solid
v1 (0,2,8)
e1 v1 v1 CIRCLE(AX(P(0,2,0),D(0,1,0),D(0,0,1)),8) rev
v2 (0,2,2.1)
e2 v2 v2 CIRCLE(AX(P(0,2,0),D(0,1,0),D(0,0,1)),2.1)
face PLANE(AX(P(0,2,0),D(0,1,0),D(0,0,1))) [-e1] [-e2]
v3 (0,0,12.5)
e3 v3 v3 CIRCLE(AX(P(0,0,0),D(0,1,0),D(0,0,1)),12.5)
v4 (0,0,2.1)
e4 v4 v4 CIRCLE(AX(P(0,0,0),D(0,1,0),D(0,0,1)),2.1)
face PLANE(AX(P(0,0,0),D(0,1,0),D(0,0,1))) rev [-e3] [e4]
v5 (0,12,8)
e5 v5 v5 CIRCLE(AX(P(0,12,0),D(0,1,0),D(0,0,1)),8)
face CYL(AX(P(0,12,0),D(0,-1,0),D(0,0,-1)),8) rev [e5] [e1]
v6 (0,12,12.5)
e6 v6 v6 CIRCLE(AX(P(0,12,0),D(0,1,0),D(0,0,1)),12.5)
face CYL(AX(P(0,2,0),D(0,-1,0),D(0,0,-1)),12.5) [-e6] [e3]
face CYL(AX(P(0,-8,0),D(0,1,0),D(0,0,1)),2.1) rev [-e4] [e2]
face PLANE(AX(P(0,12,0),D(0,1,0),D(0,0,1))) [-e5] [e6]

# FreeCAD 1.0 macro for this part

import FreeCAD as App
import Part
import Sketcher
Q = App.Units.Quantity

doc = App.newDocument("Part")
params = doc.addObject("Spreadsheet::Sheet", "Params")
for row, (alias, value) in enumerate([
    ("sketch1_diameter", "25 mm"),
    ("pad1_length", "2 mm"),
    ("sketch2_diameter", "25 mm"),
    ("sketch2_diameter2", "16 mm"),
    ("pad2_length", "10 mm"),
    ("sketch3_diameter", "4.2 mm"),
    ("pocket1_length", "10 mm"),
], start=1):
    params.set(f"A{row}", alias)
    params.set(f"B{row}", "=" + value)
    params.setAlias(f"B{row}", alias)

body = doc.addObject("PartDesign::Body", "Body")

sketch1 = body.newObject("Sketcher::SketchObject", "Sketch")
sketch1.AttachmentSupport = (doc.getObject("XZ_Plane"), [""])
sketch1.MapMode = "FlatFace"
sketch1.addGeometry(Part.Circle(App.Vector(0, 0, 0), App.Vector(0, 0, 1), 12), False)
sketch1.addConstraint([
    Sketcher.Constraint("Coincident", 0, 3, -1, 1),
    Sketcher.Constraint("Diameter", 0, Q("25 mm")),
])
sketch1.setExpression("Constraints[1]", "Params.sketch1_diameter")
pad1 = body.newObject("PartDesign::Pad", "Pad")
pad1.Profile = sketch1
pad1.setExpression("Length", "Params.pad1_length")
pad1.Reversed = True

sketch2 = body.newObject("Sketcher::SketchObject", "Sketch001")
sketch2.AttachmentSupport = (doc.getObject("XZ_Plane"), [""])
sketch2.MapMode = "FlatFace"
sketch2.AttachmentOffset = App.Placement(App.Vector(0, 0, -2), App.Rotation())
sketch2.addGeometry([
    Part.Circle(App.Vector(0, 0, 0), App.Vector(0, 0, 1), 12),
    Part.Circle(App.Vector(0, 0, 0), App.Vector(0, 0, 1), 8),
], False)
sketch2.addConstraint([
    Sketcher.Constraint("Coincident", 0, 3, -1, 1),
    Sketcher.Constraint("Coincident", 1, 3, -1, 1),
    Sketcher.Constraint("Diameter", 0, Q("25 mm")),
    Sketcher.Constraint("Diameter", 1, Q("16 mm")),
])
sketch2.setExpression("Constraints[2]", "Params.sketch2_diameter")
sketch2.setExpression("Constraints[3]", "Params.sketch2_diameter2")
pad2 = body.newObject("PartDesign::Pad", "Pad001")
pad2.Profile = sketch2
pad2.setExpression("Length", "Params.pad2_length")
pad2.Reversed = True

sketch3 = body.newObject("Sketcher::SketchObject", "Sketch002")
sketch3.AttachmentSupport = (doc.getObject("XZ_Plane"), [""])
sketch3.MapMode = "FlatFace"
sketch3.AttachmentOffset = App.Placement(App.Vector(0, 0, -2), App.Rotation())
sketch3.addGeometry(Part.Circle(App.Vector(0, 0, 0), App.Vector(0, 0, 1), 2.1), False)
sketch3.addConstraint([
    Sketcher.Constraint("Coincident", 0, 3, -1, 1),
    Sketcher.Constraint("Diameter", 0, Q("4.2 mm")),
])
sketch3.setExpression("Constraints[1]", "Params.sketch3_diameter")
pocket1 = body.newObject("PartDesign::Pocket", "Pocket")
pocket1.Profile = sketch3
pocket1.setExpression("Length", "Params.pocket1_length")
pocket1.Reversed = True

doc.recompute()
